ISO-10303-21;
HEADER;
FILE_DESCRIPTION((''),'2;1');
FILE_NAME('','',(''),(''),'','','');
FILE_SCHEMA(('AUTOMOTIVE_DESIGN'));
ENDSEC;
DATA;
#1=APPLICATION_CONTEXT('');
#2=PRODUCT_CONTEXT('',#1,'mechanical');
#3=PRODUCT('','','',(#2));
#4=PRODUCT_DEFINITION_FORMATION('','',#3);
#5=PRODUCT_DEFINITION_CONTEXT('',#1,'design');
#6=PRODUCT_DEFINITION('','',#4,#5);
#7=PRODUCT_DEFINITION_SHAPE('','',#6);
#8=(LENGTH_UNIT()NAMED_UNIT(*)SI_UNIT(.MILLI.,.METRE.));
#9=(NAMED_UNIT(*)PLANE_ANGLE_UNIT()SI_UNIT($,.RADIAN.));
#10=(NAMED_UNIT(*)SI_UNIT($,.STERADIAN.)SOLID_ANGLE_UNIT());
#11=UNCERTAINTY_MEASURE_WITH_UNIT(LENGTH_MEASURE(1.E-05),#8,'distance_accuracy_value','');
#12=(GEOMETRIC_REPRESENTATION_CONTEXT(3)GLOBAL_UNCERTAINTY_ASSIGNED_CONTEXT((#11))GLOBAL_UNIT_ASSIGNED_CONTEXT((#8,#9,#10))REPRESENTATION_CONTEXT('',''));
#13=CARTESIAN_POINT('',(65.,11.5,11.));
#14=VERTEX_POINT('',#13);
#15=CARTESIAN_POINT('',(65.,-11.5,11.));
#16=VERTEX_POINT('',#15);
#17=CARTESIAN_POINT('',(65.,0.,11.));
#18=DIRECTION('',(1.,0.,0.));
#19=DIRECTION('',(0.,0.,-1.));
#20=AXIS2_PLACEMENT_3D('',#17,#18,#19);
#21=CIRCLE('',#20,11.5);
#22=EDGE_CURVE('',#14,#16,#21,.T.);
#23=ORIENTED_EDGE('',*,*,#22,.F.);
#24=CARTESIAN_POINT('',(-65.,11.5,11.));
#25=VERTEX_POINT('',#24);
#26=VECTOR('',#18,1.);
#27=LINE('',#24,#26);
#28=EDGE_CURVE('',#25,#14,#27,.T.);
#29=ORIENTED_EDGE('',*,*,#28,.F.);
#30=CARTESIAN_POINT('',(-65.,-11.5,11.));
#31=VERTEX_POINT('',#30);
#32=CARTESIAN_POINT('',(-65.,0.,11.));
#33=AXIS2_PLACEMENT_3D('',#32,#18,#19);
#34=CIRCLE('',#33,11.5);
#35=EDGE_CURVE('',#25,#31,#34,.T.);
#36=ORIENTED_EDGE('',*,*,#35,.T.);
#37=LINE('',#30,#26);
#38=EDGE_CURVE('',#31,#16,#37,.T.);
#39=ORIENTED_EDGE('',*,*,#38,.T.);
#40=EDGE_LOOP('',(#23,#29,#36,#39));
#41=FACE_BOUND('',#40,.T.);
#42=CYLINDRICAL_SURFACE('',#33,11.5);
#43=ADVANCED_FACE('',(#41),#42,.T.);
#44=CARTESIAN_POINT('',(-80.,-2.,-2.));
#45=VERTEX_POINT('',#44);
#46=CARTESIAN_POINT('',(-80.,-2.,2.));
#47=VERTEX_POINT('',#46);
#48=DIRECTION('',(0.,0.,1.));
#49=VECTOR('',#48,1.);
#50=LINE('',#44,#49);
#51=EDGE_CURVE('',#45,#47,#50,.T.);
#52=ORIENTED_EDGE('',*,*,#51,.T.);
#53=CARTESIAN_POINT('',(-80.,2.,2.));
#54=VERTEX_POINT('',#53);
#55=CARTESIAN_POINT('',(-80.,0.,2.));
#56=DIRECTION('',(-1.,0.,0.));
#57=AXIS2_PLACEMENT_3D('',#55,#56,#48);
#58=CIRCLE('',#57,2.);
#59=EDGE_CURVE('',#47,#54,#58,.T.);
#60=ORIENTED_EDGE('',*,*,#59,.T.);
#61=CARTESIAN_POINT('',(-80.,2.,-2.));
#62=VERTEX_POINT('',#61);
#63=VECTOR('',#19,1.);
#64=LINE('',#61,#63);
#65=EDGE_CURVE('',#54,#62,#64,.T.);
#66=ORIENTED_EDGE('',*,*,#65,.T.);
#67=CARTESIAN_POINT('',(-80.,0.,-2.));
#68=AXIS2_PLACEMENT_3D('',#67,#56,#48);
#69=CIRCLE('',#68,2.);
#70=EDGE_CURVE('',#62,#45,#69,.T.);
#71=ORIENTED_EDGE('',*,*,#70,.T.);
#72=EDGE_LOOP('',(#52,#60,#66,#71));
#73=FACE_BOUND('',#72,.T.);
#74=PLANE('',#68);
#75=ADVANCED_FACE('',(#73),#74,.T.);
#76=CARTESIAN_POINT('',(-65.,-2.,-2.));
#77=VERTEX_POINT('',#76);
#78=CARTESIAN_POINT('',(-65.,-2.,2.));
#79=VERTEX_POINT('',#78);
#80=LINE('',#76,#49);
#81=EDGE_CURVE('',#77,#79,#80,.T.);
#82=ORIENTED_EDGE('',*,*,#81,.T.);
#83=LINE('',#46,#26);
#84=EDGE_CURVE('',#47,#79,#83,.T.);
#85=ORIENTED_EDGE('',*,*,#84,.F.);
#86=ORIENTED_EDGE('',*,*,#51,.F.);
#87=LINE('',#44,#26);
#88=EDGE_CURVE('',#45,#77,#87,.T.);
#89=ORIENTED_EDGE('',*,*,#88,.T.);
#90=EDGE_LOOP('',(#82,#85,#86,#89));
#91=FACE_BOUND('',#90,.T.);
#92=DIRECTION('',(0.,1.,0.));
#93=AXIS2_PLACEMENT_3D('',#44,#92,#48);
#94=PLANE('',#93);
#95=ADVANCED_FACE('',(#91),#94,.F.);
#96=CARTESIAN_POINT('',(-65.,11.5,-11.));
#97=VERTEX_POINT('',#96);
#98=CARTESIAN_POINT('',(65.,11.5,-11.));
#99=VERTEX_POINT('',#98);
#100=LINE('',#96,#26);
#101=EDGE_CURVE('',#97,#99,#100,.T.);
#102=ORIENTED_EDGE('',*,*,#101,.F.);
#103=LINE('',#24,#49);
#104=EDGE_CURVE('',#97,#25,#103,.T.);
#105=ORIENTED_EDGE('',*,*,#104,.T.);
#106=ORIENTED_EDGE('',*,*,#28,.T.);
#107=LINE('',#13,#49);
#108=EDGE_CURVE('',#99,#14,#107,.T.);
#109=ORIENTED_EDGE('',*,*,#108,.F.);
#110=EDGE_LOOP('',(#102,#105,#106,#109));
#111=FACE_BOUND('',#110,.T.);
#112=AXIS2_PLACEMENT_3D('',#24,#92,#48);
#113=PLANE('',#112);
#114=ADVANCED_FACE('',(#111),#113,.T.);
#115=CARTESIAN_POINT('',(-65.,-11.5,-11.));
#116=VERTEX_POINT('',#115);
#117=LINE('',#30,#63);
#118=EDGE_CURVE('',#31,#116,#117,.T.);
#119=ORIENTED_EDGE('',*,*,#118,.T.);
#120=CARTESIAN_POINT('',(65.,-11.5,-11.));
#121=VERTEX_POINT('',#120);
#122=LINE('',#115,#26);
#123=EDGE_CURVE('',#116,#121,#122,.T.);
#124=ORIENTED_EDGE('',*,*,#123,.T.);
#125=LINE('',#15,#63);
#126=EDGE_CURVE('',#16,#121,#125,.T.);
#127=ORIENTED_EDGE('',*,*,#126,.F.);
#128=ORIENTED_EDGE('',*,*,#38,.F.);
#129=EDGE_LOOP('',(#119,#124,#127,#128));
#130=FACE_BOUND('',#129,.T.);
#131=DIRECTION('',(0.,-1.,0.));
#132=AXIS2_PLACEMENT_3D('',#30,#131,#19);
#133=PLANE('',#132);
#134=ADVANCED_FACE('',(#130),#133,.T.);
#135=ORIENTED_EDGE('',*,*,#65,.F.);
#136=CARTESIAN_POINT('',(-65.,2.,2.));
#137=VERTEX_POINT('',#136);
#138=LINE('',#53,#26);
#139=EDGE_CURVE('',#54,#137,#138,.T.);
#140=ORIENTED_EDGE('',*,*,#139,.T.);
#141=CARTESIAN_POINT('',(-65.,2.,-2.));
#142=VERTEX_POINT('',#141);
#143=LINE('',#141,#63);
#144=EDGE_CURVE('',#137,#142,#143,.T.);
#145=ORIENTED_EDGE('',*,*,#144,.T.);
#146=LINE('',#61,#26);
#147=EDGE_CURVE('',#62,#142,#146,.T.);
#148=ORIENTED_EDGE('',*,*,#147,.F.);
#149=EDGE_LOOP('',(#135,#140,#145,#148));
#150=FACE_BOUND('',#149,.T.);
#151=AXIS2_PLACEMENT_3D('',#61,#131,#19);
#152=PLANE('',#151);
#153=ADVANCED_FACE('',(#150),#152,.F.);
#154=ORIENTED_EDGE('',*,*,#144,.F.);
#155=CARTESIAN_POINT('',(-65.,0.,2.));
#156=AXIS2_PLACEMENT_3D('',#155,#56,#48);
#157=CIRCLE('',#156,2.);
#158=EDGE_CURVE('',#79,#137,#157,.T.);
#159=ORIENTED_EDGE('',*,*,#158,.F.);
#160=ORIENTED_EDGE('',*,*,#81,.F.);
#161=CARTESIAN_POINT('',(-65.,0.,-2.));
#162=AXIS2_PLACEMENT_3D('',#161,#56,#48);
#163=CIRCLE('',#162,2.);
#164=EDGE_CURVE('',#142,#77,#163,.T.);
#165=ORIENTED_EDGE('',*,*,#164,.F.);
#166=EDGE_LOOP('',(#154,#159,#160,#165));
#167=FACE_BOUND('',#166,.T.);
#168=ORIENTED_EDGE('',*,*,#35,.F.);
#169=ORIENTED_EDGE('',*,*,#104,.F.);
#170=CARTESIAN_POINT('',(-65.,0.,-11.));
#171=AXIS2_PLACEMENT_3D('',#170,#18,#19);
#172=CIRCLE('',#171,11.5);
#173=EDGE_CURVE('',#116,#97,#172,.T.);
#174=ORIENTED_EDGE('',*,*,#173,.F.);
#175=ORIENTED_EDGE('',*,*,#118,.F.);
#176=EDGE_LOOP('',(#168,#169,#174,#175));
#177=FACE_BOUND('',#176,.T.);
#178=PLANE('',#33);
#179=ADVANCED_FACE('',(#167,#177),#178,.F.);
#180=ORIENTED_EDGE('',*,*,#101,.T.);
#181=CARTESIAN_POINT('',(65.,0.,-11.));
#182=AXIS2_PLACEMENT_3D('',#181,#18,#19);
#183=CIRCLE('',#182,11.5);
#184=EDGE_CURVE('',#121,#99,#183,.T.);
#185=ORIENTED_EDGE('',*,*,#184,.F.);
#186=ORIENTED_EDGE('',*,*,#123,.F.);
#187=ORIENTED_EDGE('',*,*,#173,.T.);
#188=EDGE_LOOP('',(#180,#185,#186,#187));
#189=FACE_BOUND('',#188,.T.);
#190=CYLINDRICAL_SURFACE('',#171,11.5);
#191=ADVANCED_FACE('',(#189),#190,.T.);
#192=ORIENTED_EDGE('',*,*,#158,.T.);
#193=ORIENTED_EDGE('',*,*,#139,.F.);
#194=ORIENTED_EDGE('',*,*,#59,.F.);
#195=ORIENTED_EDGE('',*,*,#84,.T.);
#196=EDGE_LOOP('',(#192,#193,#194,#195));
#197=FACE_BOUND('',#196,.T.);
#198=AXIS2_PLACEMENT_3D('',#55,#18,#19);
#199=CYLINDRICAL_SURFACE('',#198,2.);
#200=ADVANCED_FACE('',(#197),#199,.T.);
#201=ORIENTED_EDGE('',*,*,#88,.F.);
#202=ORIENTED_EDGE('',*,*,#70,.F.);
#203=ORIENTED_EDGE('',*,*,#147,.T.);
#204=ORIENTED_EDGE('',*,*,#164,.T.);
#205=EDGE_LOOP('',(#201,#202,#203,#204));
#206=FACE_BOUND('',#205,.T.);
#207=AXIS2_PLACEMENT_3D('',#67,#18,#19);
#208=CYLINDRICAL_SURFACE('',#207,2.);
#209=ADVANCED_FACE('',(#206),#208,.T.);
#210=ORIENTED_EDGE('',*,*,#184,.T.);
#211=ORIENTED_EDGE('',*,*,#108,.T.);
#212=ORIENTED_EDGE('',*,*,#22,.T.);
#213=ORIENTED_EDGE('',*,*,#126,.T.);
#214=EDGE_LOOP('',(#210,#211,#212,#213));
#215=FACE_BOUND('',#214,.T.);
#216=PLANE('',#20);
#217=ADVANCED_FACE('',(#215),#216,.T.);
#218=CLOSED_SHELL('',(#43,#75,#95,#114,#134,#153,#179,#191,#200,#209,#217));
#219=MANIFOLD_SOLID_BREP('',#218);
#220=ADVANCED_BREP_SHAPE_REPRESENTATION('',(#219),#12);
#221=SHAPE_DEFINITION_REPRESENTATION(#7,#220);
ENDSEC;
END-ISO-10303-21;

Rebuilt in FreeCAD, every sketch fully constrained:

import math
import FreeCAD as App
import Part
import Sketcher

doc = App.newDocument("Part")
body = doc.addObject("PartDesign::Body", "Body")

# Sketch on YZ plane
sketch1 = body.newObject("Sketcher::SketchObject", "Sketch")
sketch1.AttachmentSupport = (doc.getObject("YZ_Plane"), [""])
sketch1.MapMode = "FlatFace"
sketch1.addGeometry([
    Part.LineSegment(App.Vector(12, -11, 0), App.Vector(12, 11, 0)),
    Part.ArcOfCircle(Part.Circle(App.Vector(0, 11, 0), App.Vector(0, 0, 1), 12), math.radians(0), math.radians(180)),
    Part.LineSegment(App.Vector(-12, 11, 0), App.Vector(-12, -11, 0)),
    Part.ArcOfCircle(Part.Circle(App.Vector(0, -11, 0), App.Vector(0, 0, 1), 12), math.radians(180), math.radians(360)),
], False)
sketch1.addConstraint([
    Sketcher.Constraint("Tangent", 0, 2, 1, 1),
    Sketcher.Constraint("Tangent", 1, 2, 2, 1),
    Sketcher.Constraint("Tangent", 2, 2, 3, 1),
    Sketcher.Constraint("Tangent", 3, 2, 0, 1),
    Sketcher.Constraint("Vertical", 0),
    Sketcher.Constraint("Vertical", 2),
    Sketcher.Constraint("Symmetric", 1, 3, 3, 3, -1, 1),
    Sketcher.Constraint("Radius", 1, 11.5),
    Sketcher.Constraint("DistanceY", 0, 1, 0, 2, 22.0),
])
pad1 = body.newObject("PartDesign::Pad", "Pad")
pad1.Profile = sketch1
pad1.Type = "TwoLengths"
pad1.Length = 65
pad1.Length2 = 65

# Sketch on YZ plane
sketch2 = body.newObject("Sketcher::SketchObject", "Sketch001")
sketch2.AttachmentSupport = (doc.getObject("YZ_Plane"), [""])
sketch2.MapMode = "FlatFace"
sketch2.AttachmentOffset = App.Placement(App.Vector(0, 0, -65), App.Rotation())
sketch2.addGeometry([
    Part.LineSegment(App.Vector(2, 2, 0), App.Vector(2, -2, 0)),
    Part.ArcOfCircle(Part.Circle(App.Vector(0, -2, 0), App.Vector(0, 0, 1), 2), math.radians(180), math.radians(360)),
    Part.LineSegment(App.Vector(-2, -2, 0), App.Vector(-2, 2, 0)),
    Part.ArcOfCircle(Part.Circle(App.Vector(0, 2, 0), App.Vector(0, 0, 1), 2), math.radians(0), math.radians(180)),
], False)
sketch2.addConstraint([
    Sketcher.Constraint("Tangent", 0, 2, 1, 2),
    Sketcher.Constraint("Tangent", 1, 1, 2, 1),
    Sketcher.Constraint("Tangent", 2, 2, 3, 2),
    Sketcher.Constraint("Tangent", 3, 1, 0, 1),
    Sketcher.Constraint("Vertical", 0),
    Sketcher.Constraint("Vertical", 2),
    Sketcher.Constraint("Symmetric", 1, 3, 3, 3, -1, 1),
    Sketcher.Constraint("Radius", 1, 2.0),
    Sketcher.Constraint("DistanceY", 0, 2, 0, 1, 4.0),
])
pad2 = body.newObject("PartDesign::Pad", "Pad001")
pad2.Profile = sketch2
pad2.Length = 15
pad2.Reversed = True

doc.recompute()
